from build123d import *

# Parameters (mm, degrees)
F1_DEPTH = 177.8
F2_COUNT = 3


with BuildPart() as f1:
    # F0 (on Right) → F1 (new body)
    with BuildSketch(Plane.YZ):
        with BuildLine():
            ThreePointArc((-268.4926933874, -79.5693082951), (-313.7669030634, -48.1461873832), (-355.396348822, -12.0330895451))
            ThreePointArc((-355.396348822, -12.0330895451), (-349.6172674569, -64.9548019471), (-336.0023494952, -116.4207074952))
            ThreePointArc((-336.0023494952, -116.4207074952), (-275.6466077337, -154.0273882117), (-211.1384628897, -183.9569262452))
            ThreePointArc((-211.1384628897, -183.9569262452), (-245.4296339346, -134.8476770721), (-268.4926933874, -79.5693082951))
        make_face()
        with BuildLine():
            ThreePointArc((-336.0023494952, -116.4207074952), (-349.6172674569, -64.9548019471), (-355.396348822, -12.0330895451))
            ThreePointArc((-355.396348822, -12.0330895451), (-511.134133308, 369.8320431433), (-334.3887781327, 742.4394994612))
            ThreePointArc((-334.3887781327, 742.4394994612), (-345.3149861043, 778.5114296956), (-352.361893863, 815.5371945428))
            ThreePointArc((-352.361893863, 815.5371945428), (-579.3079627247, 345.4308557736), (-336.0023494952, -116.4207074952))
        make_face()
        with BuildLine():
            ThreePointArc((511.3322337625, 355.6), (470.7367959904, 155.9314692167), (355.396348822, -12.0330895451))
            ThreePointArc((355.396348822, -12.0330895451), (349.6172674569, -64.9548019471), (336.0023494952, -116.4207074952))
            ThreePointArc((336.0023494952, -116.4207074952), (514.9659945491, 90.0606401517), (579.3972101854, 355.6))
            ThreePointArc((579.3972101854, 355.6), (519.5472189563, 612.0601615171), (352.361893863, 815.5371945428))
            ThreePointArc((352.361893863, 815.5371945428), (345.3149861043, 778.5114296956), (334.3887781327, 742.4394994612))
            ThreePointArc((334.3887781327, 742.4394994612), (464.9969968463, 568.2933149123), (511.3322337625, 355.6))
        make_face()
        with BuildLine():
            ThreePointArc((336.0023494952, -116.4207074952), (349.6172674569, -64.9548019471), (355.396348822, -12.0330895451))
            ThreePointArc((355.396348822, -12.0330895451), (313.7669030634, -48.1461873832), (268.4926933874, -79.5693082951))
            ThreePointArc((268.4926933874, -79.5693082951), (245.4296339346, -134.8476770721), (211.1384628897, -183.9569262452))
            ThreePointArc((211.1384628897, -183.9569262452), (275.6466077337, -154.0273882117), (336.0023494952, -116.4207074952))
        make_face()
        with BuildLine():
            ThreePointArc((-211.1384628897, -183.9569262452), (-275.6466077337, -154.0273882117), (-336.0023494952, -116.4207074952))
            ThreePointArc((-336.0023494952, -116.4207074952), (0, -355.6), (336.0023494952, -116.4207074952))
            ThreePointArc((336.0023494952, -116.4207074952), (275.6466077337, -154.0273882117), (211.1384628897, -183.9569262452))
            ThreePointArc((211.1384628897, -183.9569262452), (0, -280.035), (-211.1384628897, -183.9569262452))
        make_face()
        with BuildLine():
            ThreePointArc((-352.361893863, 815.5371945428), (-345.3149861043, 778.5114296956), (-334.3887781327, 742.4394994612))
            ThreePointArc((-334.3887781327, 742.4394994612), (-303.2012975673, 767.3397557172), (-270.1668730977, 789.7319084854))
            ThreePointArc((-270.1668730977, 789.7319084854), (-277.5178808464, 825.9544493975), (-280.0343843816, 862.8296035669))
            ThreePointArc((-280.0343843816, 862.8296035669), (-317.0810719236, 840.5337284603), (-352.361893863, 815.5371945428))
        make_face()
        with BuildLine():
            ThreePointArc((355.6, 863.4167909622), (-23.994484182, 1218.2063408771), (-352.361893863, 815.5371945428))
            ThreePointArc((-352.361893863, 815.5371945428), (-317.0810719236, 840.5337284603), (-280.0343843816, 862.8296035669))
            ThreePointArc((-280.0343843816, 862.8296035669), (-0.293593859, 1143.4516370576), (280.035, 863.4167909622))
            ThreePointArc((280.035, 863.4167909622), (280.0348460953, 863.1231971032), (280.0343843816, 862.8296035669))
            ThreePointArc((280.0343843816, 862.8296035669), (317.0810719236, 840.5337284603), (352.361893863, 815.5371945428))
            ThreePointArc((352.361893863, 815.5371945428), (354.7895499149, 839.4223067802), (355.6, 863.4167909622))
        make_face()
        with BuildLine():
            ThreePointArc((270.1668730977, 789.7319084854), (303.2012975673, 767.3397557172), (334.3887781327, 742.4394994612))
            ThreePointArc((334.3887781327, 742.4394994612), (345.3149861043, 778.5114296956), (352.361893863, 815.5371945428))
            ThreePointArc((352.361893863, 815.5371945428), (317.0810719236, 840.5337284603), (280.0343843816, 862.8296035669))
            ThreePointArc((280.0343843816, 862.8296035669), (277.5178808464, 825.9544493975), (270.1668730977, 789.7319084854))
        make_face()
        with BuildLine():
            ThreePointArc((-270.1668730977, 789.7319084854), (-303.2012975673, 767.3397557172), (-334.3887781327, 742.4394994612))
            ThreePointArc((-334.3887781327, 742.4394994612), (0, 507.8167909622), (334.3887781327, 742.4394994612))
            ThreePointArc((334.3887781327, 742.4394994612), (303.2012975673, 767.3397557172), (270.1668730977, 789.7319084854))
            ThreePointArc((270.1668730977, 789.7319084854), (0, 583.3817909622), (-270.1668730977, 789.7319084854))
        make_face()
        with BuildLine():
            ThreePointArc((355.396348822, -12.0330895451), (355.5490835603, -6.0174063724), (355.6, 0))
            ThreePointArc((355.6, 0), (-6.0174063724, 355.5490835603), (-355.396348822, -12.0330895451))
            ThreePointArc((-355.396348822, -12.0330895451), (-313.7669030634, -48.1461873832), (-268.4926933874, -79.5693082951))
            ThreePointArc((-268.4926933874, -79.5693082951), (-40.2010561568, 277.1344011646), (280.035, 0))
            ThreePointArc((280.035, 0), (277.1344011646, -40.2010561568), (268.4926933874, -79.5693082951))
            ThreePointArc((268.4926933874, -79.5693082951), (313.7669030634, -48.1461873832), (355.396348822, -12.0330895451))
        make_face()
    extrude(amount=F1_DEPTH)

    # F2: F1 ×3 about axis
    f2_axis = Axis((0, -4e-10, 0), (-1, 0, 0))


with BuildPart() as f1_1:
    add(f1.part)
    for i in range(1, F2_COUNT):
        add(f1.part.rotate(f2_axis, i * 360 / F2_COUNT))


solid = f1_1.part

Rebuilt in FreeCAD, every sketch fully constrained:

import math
import FreeCAD as App
import Part
import Sketcher

V = App.Vector
Q = App.Units.Quantity

doc = App.newDocument("Part")
params = doc.addObject("Spreadsheet::Sheet", "Params")
for row, (alias, value) in enumerate([
    ("sketch1_radius", "14 in"),
    ("sketch1_radius2", "11.025 in"),
    ("pad1_length", "7 in"),
], start=1):
    params.set(f"A{row}", alias)
    params.set(f"B{row}", "=" + value)
    params.setAlias(f"B{row}", alias)

body = doc.addObject("PartDesign::Body", "Body")

# Sketch on YZ plane
sketch1 = body.newObject("Sketcher::SketchObject", "Sketch")
sketch1.AttachmentSupport = (doc.getObject("YZ_Plane"), [""])
sketch1.MapMode = "FlatFace"
sketch1.addGeometry([
    Part.ArcOfCircle(Part.Circle(V(0, 355.6, 0), V(0, 0, 1), 579.4), math.radians(-55), math.radians(53)),  # 0
    Part.ArcOfCircle(Part.Circle(V(0, 863.4, 0), V(0, 0, 1), 355.6), math.radians(-7.74), math.radians(0)),  # 1
    Part.ArcOfCircle(Part.Circle(V(0, 863.4, 0), V(0, 0, 1), 355.6), math.radians(0), math.radians(188)),  # 2
    Part.ArcOfCircle(Part.Circle(V(0, 355.6, 0), V(0, 0, 1), 579.4), math.radians(127), math.radians(235)),  # 3
    Part.ArcOfCircle(Part.Circle(V(0, 0, 0), V(0, 0, 1), 355.6), math.radians(-161), math.radians(-19)),  # 4
    Part.ArcOfCircle(Part.Circle(V(0, 863.4, 0), V(0, 0, 1), 280), math.radians(-0.12), math.radians(0)),  # 5
    Part.ArcOfCircle(Part.Circle(V(0, 863.4, 0), V(0, 0, 1), 280), math.radians(-15.26), math.radians(-0.12)),  # 6
    Part.ArcOfCircle(Part.Circle(V(0, 863.4, 0), V(0, 0, 1), 280), math.radians(-165), math.radians(-15)),  # 7
    Part.ArcOfCircle(Part.Circle(V(0, 863.4, 0), V(0, 0, 1), 280), math.radians(-179.88), math.radians(-164.74)),  # 8
    Part.ArcOfCircle(Part.Circle(V(0, 863.4, 0), V(0, 0, 1), 280), math.radians(0), math.radians(180)),  # 9
    Part.ArcOfCircle(Part.Circle(V(0, 355.6, 0), V(0, 0, 1), 511.3), math.radians(0), math.radians(49)),  # 10
    Part.ArcOfCircle(Part.Circle(V(0, 355.6, 0), V(0, 0, 1), 511.3), math.radians(-46), math.radians(0)),  # 11
    Part.ArcOfCircle(Part.Circle(V(0, 0, 0), V(0, 0, 1), 355.6), math.radians(-1.94), math.radians(0)),  # 12
    Part.ArcOfCircle(Part.Circle(V(0, 0, 0), V(0, 0, 1), 355.6), math.radians(0), math.radians(182)),  # 13
    Part.ArcOfCircle(Part.Circle(V(0, 355.6, 0), V(0, 0, 1), 511.3), math.radians(131), math.radians(226)),  # 14
    Part.ArcOfCircle(Part.Circle(V(0, 863.4, 0), V(0, 0, 1), 355.6), math.radians(-160), math.radians(-20)),  # 15
    Part.ArcOfCircle(Part.Circle(V(0, 0, 0), V(0, 0, 1), 280), math.radians(-163), math.radians(-17)),  # 16
    Part.ArcOfCircle(Part.Circle(V(0, 0, 0), V(0, 0, 1), 280), math.radians(0), math.radians(197)),  # 17
    Part.ArcOfCircle(Part.Circle(V(0, 0, 0), V(0, 0, 1), 280), math.radians(-16.51), math.radians(0)),  # 18
], False)
sketch1.addConstraint([
    Sketcher.Constraint("Coincident", 0, 2, 1, 1),
    Sketcher.Constraint("Tangent", 1, 2, 2, 1),
    Sketcher.Constraint("Coincident", 2, 2, 3, 1),
    Sketcher.Constraint("Coincident", 3, 2, 4, 1),
    Sketcher.Constraint("Coincident", 4, 2, 0, 1),
    Sketcher.Constraint("Tangent", 5, 1, 6, 2),
    Sketcher.Constraint("Tangent", 6, 1, 7, 2),
    Sketcher.Constraint("Tangent", 7, 1, 8, 2),
    Sketcher.Constraint("Tangent", 8, 1, 9, 2),
    Sketcher.Constraint("Coincident", 9, 1, 5, 2),
    Sketcher.Constraint("Coincident", 10, 1, 11, 2),
    Sketcher.Constraint("Coincident", 11, 1, 12, 1),
    Sketcher.Constraint("Tangent", 12, 2, 13, 1),
    Sketcher.Constraint("Coincident", 13, 2, 14, 2),
    Sketcher.Constraint("Coincident", 14, 1, 15, 1),
    Sketcher.Constraint("Coincident", 15, 2, 10, 2),
    Sketcher.Constraint("Tangent", 16, 1, 17, 2),
    Sketcher.Constraint("Tangent", 17, 1, 18, 2),
    Sketcher.Constraint("Coincident", 18, 1, 16, 2),
    Sketcher.Constraint("Coincident", 4, 3, -1, 1),
    Sketcher.Constraint("Coincident", 12, 3, -1, 1),
    Sketcher.Constraint("Coincident", 16, 3, -1, 1),
    Sketcher.Constraint("Coincident", 3, 3, 0, 3),
    Sketcher.Constraint("Coincident", 6, 3, 1, 3),
    Sketcher.Constraint("Coincident", 8, 3, 1, 3),
    Sketcher.Constraint("Coincident", 10, 3, 0, 3),
    Sketcher.Constraint("Coincident", 11, 3, 0, 3),
    Sketcher.Constraint("Coincident", 14, 3, 0, 3),
    Sketcher.Constraint("Coincident", 15, 3, 1, 3),
    Sketcher.Constraint("Equal", 1, 2),
    Sketcher.Constraint("Equal", 0, 3),
    Sketcher.Constraint("Equal", 2, 4),
    Sketcher.Constraint("Equal", 4, 12),
    Sketcher.Constraint("Equal", 12, 13),
    Sketcher.Constraint("Equal", 11, 14),
    Sketcher.Constraint("Equal", 13, 15),
    Sketcher.Constraint("Equal", 9, 16),
    Sketcher.Constraint("Equal", 16, 17),
    Sketcher.Constraint("Symmetric", 6, 1, 7, 1, -2),
    Sketcher.Constraint("PointOnObject", 0, 3, -2),
    Sketcher.Constraint("PointOnObject", 12, 2, -1),
    Sketcher.Constraint("PointOnObject", 17, 1, -1),
    Sketcher.Constraint("Horizontal", 15, 3, 1, 2),
    Sketcher.Constraint("Horizontal", 5, 1, 8, 1),
    Sketcher.Constraint("Horizontal", 1, 2, 9, 1),
    Sketcher.Constraint("Horizontal", 14, 3, 10, 1),
    Sketcher.Constraint("Horizontal", 16, 1, 18, 1),
    Sketcher.Constraint("Radius", 1, Q("14 in")),
    Sketcher.Constraint("DistanceY", -1, 1, 0, 3, Q("14 in")),
    Sketcher.Constraint("Radius", 6, Q("11.025 in")),
    Sketcher.Constraint("Radius", 0, Q("579.39721 mm")),
    Sketcher.Constraint("Radius", 5, Q("280.03512 mm")),
    Sketcher.Constraint("Radius", 10, Q("511.332234 mm")),
    Sketcher.Constraint("DistanceY", 3, 2, 16, 1, Q("36.851399 mm")),
    Sketcher.Constraint("DistanceY", -1, 1, 1, 3, Q("863.416791 mm")),
    Sketcher.Constraint("DistanceY", -1, 1, 6, 1, Q("789.731908 mm")),
    Sketcher.Constraint("DistanceY", 0, 2, 5, 1, Q("47.292409 mm")),
])
sketch1.setExpression("Constraints[47]", "Params.sketch1_radius")
sketch1.setExpression("Constraints[49]", "Params.sketch1_radius2")
pad1 = body.newObject("PartDesign::Pad", "Pad")
pad1.Profile = sketch1
pad1.setExpression("Length", "Params.pad1_length")
body2 = doc.addObject("PartDesign::Body", "Body001")
doc.recompute()

body2.BaseFeature = body
doc.recompute()

body3 = doc.addObject("PartDesign::Body", "Body002")
body3.BaseFeature = body
body3.Placement = App.Placement(V(0, 0, 0), App.Rotation(V(-1, 0, 0), 120))
boolean = body2.newObject("PartDesign::Boolean", "Boolean")
boolean.Type = "Fuse"
boolean.addObjects([body3])
doc.recompute()

body.Placement = App.Placement(V(0, 0, 0), App.Rotation(V(-1, 0, 0), 240))
boolean2 = body2.newObject("PartDesign::Boolean", "Boolean001")
boolean2.Type = "Fuse"
boolean2.addObjects([body])

doc.recompute()
